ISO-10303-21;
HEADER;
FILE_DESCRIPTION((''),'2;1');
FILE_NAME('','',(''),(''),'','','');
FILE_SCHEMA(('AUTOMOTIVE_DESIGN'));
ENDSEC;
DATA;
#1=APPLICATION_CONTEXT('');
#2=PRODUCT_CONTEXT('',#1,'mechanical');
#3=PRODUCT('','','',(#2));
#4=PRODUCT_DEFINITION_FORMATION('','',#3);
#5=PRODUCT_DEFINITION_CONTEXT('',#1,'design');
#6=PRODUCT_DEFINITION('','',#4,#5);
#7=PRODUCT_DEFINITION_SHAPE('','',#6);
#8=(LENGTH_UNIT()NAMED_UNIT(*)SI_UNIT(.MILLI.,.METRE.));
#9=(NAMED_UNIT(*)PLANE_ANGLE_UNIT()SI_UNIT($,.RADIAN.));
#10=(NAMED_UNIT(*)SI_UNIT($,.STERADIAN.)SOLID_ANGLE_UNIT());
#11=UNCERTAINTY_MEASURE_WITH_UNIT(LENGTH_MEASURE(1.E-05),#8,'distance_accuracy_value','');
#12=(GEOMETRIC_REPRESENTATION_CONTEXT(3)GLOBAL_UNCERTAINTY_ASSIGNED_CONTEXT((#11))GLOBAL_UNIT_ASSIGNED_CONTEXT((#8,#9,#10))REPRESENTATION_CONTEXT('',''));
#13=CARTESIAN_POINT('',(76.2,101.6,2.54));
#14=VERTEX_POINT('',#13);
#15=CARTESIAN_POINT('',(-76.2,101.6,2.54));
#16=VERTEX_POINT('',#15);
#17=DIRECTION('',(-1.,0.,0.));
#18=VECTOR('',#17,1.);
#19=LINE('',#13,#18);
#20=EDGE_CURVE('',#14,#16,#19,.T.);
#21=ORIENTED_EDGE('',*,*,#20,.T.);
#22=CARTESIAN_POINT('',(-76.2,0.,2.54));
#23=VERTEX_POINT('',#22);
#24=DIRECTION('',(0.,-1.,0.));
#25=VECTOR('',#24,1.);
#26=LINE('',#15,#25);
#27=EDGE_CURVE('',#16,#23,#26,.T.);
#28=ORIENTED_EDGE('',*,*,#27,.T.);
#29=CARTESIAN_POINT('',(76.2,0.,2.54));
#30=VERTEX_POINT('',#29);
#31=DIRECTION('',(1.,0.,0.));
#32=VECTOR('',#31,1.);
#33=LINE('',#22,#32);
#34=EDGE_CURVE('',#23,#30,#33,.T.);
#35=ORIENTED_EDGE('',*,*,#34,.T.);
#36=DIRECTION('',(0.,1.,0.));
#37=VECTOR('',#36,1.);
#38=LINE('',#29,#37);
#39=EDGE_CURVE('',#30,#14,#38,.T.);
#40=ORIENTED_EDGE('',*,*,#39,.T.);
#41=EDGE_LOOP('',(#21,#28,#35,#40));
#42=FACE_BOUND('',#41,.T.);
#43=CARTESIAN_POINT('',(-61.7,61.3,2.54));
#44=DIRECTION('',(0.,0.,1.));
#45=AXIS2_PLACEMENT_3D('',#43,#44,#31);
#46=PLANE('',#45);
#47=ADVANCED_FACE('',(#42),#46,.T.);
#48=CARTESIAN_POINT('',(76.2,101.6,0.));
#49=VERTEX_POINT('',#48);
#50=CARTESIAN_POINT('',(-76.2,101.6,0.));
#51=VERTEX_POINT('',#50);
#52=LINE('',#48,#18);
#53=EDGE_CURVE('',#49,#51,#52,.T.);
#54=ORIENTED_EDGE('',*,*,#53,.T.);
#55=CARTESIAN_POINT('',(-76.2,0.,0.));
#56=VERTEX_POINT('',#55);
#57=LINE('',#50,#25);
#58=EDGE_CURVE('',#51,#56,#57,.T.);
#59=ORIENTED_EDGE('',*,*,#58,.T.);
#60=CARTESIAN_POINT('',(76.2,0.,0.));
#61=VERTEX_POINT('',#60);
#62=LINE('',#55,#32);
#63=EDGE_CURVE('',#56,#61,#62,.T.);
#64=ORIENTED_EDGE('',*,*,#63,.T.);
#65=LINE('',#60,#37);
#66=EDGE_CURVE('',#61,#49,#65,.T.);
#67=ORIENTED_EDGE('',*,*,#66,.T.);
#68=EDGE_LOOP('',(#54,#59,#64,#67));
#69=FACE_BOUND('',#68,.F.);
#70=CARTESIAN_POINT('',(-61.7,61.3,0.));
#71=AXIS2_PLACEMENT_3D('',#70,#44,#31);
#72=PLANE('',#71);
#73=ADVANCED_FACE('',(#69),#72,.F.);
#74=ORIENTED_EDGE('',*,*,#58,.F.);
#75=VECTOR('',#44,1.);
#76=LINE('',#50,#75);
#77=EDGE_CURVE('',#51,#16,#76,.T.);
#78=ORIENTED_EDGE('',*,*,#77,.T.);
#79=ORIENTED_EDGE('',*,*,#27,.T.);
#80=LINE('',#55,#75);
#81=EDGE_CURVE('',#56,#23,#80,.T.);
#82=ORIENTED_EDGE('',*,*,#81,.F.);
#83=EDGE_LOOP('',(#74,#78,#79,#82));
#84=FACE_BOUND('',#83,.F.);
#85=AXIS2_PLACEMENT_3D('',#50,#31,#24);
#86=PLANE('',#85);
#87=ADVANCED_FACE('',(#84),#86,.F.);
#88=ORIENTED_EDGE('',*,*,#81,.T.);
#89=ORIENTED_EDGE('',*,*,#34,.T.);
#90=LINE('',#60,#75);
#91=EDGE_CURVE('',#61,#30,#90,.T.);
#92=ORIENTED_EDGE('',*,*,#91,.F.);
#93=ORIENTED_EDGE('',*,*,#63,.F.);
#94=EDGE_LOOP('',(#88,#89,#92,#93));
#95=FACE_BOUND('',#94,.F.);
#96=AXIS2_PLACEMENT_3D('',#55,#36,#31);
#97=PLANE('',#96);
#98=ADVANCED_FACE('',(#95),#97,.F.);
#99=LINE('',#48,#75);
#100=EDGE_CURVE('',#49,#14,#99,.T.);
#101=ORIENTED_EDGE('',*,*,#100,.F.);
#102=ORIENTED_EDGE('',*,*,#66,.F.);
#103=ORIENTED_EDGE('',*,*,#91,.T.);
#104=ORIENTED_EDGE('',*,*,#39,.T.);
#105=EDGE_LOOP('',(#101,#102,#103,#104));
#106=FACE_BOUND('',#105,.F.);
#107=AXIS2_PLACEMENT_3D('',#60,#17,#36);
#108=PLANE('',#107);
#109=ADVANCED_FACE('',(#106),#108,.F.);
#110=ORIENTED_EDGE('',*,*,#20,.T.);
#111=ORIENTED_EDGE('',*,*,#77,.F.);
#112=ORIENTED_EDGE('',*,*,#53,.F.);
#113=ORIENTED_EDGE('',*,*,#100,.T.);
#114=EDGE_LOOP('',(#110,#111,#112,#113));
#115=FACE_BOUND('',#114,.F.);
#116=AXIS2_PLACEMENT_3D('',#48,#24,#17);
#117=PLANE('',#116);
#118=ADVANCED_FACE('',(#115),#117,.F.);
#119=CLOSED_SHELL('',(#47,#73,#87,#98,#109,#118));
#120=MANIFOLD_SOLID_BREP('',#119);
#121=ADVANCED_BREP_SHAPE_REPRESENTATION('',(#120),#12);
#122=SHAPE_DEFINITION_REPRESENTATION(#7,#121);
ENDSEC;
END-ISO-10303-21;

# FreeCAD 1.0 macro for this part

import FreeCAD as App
import Part
import Sketcher

V = App.Vector
Q = App.Units.Quantity


def add_polygon(sketch, points):
    """Adds a closed chain of lines whose ends are joined by coincident constraints."""
    first, n = sketch.GeometryCount, len(points)
    for a, b in zip(points, points[1:] + points[:1]):
        sketch.addGeometry(Part.LineSegment(App.Vector(*a, 0), App.Vector(*b, 0)), False)
    for i in range(n):
        sketch.addConstraint(Sketcher.Constraint("Coincident", first + i, 2, first + (i + 1) % n, 1))

doc = App.newDocument("Part")
body = doc.addObject("PartDesign::Body", "Body")

sketch1 = body.newObject("Sketcher::SketchObject", "Sketch")
sketch1.AttachmentSupport = (doc.getObject("XY_Plane"), [""])
sketch1.MapMode = "FlatFace"
add_polygon(sketch1, [(76.2, 101.6), (-76.2, 101.6), (-76.2, 0), (76.2, 0)])
sketch1.addConstraint([
    Sketcher.Constraint("Horizontal", 0),
    Sketcher.Constraint("Vertical", 1),
    Sketcher.Constraint("Horizontal", 2),
    Sketcher.Constraint("Vertical", 3),
    Sketcher.Constraint("Symmetric", 1, 2, 2, 2, -1, 1),
    Sketcher.Constraint("DistanceX", 0, 2, 0, 1, Q("6 in")),
    Sketcher.Constraint("DistanceY", 1, 2, 1, 1, Q("4 in")),
])
pad1 = body.newObject("PartDesign::Pad", "Pad")
pad1.Profile = sketch1
pad1.Length = Q("0.1 in")

doc.recompute()
